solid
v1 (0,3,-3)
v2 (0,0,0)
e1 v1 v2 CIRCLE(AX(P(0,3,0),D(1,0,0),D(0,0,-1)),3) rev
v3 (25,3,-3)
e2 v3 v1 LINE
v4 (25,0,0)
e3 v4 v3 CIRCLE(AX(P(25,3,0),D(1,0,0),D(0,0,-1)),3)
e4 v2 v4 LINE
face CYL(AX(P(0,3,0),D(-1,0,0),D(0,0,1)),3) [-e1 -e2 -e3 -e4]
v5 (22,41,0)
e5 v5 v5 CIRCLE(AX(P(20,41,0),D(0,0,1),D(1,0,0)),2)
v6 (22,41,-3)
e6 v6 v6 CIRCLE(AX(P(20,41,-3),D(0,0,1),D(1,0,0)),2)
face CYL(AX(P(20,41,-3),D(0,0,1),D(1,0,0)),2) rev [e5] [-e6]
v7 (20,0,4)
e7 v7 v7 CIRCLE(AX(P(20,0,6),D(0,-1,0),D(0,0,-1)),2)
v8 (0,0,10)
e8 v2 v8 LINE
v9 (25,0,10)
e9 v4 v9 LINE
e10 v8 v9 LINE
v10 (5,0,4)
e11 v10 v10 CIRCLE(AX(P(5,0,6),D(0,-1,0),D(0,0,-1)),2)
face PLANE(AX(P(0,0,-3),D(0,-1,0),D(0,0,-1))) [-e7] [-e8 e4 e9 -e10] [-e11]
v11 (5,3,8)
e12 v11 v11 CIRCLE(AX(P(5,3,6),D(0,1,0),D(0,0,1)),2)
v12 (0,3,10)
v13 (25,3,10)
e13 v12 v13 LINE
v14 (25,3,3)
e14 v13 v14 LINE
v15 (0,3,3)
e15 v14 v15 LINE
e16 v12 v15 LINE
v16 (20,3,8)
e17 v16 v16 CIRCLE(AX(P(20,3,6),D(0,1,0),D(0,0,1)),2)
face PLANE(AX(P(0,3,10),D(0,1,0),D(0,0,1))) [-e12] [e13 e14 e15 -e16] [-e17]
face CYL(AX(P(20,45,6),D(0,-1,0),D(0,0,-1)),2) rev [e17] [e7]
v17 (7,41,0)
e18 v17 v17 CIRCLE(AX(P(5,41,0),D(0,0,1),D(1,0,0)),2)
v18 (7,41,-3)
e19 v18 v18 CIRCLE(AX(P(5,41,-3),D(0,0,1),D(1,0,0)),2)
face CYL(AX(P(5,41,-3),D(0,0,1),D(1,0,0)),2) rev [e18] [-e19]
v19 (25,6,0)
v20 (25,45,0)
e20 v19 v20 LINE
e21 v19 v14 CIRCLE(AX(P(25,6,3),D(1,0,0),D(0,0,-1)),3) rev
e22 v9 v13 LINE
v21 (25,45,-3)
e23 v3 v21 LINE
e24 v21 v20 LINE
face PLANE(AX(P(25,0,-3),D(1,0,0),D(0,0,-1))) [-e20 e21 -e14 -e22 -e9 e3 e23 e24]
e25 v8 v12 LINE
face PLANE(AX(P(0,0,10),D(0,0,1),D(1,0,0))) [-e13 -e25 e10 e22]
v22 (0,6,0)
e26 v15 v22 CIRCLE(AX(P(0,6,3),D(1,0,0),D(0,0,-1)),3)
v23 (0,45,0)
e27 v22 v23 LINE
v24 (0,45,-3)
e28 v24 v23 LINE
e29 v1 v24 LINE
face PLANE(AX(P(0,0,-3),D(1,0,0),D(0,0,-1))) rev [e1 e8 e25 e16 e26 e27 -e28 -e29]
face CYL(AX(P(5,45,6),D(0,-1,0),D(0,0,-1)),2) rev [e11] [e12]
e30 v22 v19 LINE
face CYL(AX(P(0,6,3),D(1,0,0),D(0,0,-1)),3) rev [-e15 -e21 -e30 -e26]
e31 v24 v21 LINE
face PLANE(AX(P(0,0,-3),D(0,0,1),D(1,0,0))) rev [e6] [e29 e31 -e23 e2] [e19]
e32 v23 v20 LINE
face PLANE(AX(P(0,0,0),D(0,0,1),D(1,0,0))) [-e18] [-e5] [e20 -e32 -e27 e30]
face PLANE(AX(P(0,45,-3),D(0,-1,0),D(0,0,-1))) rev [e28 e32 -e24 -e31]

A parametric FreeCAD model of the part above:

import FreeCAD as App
import Part
import Sketcher

V = App.Vector
Q = App.Units.Quantity


def edges_at(feature, points):
    """Names of the edges that pass closest to the given points."""
    edges = feature.Shape.Edges
    near = lambda p: min(range(len(edges)), key=lambda i: edges[i].distToShape(Part.Vertex(*p))[0])
    return sorted({f"Edge{near(p) + 1}" for p in points})


def add_polygon(sketch, points):
    """Adds a closed chain of lines whose ends are joined by coincident constraints."""
    first, n = sketch.GeometryCount, len(points)
    for a, b in zip(points, points[1:] + points[:1]):
        sketch.addGeometry(Part.LineSegment(App.Vector(*a, 0), App.Vector(*b, 0)), False)
    for i in range(n):
        sketch.addConstraint(Sketcher.Constraint("Coincident", first + i, 2, first + (i + 1) % n, 1))

doc = App.newDocument("Part")
body = doc.addObject("PartDesign::Body", "Body")

sketch1 = body.newObject("Sketcher::SketchObject", "Sketch")
sketch1.AttachmentSupport = (doc.getObject("XY_Plane"), [""])
sketch1.MapMode = "FlatFace"
add_polygon(sketch1, [(0, 45), (0, 0), (25, 0), (25, 45)])
sketch1.addGeometry(Part.Circle(V(5, 41, 0), V(0, 0, 1), 2), False)
sketch1.addGeometry(Part.Circle(V(20, 41, 0), V(0, 0, 1), 2), False)
sketch1.addConstraint(Sketcher.Constraint("Vertical", 0))
sketch1.addConstraint(Sketcher.Constraint("Horizontal", 1))
sketch1.addConstraint(Sketcher.Constraint("Vertical", 2))
sketch1.addConstraint(Sketcher.Constraint("Horizontal", 3))
sketch1.addConstraint(Sketcher.Constraint("Coincident", 0, 2, -1, 1))
sketch1.addConstraint(Sketcher.Constraint("Equal", 4, 5))
sketch1.addConstraint(Sketcher.Constraint("Horizontal", 4, 3, 5, 3))
sketch1.addConstraint(Sketcher.Constraint("Diameter", 4, Q("4 mm")))
sketch1.addConstraint(Sketcher.Constraint("DistanceX", 1, 1, 1, 2, Q("25 mm")))
sketch1.addConstraint(Sketcher.Constraint("DistanceY", 0, 2, 0, 1, Q("45 mm")))
sketch1.addConstraint(Sketcher.Constraint("DistanceX", -1, 1, 4, 3, Q("5 mm")))
sketch1.addConstraint(Sketcher.Constraint("DistanceY", -1, 1, 4, 3, Q("41 mm")))
sketch1.addConstraint(Sketcher.Constraint("DistanceX", -1, 1, 5, 3, Q("20 mm")))
pad1 = body.newObject("PartDesign::Pad", "Pad")
pad1.Profile = sketch1
pad1.Length = 3
pad1.Reversed = True

sketch2 = body.newObject("Sketcher::SketchObject", "Sketch001")
sketch2.AttachmentSupport = (doc.getObject("XY_Plane"), [""])
sketch2.MapMode = "FlatFace"
sketch2.AttachmentOffset = App.Placement(V(0, 0, -3), App.Rotation())
add_polygon(sketch2, [(0, 3), (0, 0), (25, 0), (25, 3)])
sketch2.addConstraint(Sketcher.Constraint("Vertical", 0))
sketch2.addConstraint(Sketcher.Constraint("Horizontal", 1))
sketch2.addConstraint(Sketcher.Constraint("Vertical", 2))
sketch2.addConstraint(Sketcher.Constraint("Horizontal", 3))
sketch2.addConstraint(Sketcher.Constraint("Coincident", 0, 2, -1, 1))
sketch2.addConstraint(Sketcher.Constraint("DistanceX", 1, 1, 1, 2, Q("25 mm")))
sketch2.addConstraint(Sketcher.Constraint("DistanceY", 0, 2, 0, 1, Q("3 mm")))
pad2 = body.newObject("PartDesign::Pad", "Pad001")
pad2.Profile = sketch2
pad2.Length = 13
doc.recompute()

fillet = body.newObject("PartDesign::Fillet", "Fillet")
fillet.Base = (pad2, edges_at(pad2, [(12.5, 3, 0), (12.5, 0, -3)]))
fillet.Radius = 3

sketch3 = body.newObject("Sketcher::SketchObject", "Sketch002")
sketch3.AttachmentSupport = (doc.getObject("XZ_Plane"), [""])
sketch3.MapMode = "FlatFace"
sketch3.addGeometry(Part.Circle(V(5, 6, 0), V(0, 0, 1), 2), False)
sketch3.addGeometry(Part.Circle(V(20, 6, 0), V(0, 0, 1), 2), False)
sketch3.addConstraint(Sketcher.Constraint("Equal", 0, 1))
sketch3.addConstraint(Sketcher.Constraint("Horizontal", 0, 3, 1, 3))
sketch3.addConstraint(Sketcher.Constraint("Diameter", 0, Q("4 mm")))
sketch3.addConstraint(Sketcher.Constraint("DistanceX", -1, 1, 0, 3, Q("5 mm")))
sketch3.addConstraint(Sketcher.Constraint("DistanceY", -1, 1, 0, 3, Q("6 mm")))
sketch3.addConstraint(Sketcher.Constraint("DistanceX", -1, 1, 1, 3, Q("20 mm")))
pocket1 = body.newObject("PartDesign::Pocket", "Pocket")
pocket1.Profile = sketch3
pocket1.Type = "ThroughAll"

doc.recompute()
